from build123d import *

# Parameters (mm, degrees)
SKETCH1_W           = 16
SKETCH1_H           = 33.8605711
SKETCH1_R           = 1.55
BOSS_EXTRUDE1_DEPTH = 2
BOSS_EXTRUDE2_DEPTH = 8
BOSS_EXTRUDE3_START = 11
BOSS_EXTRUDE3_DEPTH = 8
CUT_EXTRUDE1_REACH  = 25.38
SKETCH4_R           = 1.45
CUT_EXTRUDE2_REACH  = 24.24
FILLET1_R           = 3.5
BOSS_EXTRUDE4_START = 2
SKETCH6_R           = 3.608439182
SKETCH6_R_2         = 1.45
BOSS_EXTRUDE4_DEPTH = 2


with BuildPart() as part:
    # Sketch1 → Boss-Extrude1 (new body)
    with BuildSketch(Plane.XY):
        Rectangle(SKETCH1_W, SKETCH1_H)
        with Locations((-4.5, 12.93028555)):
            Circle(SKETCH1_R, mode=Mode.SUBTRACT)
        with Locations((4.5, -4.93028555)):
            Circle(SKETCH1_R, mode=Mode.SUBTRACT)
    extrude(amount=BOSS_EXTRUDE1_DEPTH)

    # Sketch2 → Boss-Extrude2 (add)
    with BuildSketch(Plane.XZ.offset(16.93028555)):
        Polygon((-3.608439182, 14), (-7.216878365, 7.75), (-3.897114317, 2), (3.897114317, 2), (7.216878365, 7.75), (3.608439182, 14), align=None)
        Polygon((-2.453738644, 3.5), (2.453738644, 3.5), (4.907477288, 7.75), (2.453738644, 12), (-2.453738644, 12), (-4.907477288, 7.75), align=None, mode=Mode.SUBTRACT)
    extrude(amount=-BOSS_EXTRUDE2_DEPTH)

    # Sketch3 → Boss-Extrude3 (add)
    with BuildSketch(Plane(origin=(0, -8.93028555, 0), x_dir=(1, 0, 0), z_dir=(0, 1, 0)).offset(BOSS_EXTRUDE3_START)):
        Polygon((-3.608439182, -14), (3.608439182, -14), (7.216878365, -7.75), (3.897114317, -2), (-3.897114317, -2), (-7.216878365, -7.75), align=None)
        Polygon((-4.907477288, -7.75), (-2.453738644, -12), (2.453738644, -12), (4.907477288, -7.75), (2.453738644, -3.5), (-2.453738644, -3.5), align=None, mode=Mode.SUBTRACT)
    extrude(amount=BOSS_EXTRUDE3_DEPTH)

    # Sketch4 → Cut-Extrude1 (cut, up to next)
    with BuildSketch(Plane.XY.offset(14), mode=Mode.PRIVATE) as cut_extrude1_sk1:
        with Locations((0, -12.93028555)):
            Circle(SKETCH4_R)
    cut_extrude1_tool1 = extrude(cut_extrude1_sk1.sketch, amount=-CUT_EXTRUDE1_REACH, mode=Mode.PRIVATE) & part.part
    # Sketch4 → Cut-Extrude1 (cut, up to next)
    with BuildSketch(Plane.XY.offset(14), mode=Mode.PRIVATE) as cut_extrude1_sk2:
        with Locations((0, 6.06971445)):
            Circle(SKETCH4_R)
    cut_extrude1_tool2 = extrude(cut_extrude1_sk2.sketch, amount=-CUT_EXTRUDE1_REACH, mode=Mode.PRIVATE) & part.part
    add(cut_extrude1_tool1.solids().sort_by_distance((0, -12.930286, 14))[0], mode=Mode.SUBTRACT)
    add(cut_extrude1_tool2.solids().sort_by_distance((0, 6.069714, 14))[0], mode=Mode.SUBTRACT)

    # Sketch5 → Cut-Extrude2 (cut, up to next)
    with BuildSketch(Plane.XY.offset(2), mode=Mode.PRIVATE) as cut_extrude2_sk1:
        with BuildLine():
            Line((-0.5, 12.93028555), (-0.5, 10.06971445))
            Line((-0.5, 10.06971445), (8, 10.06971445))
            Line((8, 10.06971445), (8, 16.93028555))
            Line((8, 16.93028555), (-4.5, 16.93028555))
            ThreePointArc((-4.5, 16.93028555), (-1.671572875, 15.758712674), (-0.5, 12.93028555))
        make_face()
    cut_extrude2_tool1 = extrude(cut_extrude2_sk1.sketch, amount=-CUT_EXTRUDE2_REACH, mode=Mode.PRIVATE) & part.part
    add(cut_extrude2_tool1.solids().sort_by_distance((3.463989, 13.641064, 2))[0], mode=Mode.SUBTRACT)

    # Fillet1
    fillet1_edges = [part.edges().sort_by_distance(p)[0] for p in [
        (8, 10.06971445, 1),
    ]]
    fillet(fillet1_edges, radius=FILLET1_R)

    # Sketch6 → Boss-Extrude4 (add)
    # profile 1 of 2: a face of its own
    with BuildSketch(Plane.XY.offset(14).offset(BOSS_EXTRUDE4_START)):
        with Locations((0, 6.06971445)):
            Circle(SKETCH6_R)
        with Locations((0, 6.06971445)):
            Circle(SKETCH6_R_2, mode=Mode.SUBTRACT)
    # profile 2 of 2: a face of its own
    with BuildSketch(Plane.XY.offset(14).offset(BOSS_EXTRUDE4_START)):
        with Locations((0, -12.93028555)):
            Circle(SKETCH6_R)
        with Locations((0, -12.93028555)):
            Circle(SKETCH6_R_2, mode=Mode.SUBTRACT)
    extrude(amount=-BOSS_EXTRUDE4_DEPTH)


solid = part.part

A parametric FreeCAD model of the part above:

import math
import FreeCAD as App
import Part
import Sketcher
Q = App.Units.Quantity


def edges_at(feature, points):
    """Names of the edges that pass closest to the given points."""
    edges = feature.Shape.Edges
    near = lambda p: min(range(len(edges)), key=lambda i: edges[i].distToShape(Part.Vertex(*p))[0])
    return sorted({f"Edge{near(p) + 1}" for p in points})


def add_polygon(sketch, points):
    """Adds a closed chain of lines whose ends are joined by coincident constraints."""
    first, n = sketch.GeometryCount, len(points)
    for a, b in zip(points, points[1:] + points[:1]):
        sketch.addGeometry(Part.LineSegment(App.Vector(*a, 0), App.Vector(*b, 0)), False)
    for i in range(n):
        sketch.addConstraint(Sketcher.Constraint("Coincident", first + i, 2, first + (i + 1) % n, 1))

doc = App.newDocument("Part")
params = doc.addObject("Spreadsheet::Sheet", "Params")
for row, (alias, value) in enumerate([
    ("sketch1_diameter", "3.1 mm"),
    ("sketch1_width", "16 mm"),
    ("pad1_length", "2 mm"),
    ("pad2_length", "8 mm"),
    ("pad3_length", "8 mm"),
    ("sketch4_diameter", "2.9 mm"),
    ("sketch5_diameter", "2.9 mm"),
    ("sketch6_radius", "4 mm"),
    ("sketch6_width", "8.5 mm"),
    ("fillet_radius", "3.5 mm"),
    ("sketch7_diameter", "2.9 mm"),
    ("pad4_length", "2 mm"),
], start=1):
    params.set(f"A{row}", alias)
    params.set(f"B{row}", "=" + value)
    params.setAlias(f"B{row}", alias)

body = doc.addObject("PartDesign::Body", "Body")

# Sketch on XY plane
sketch1 = body.newObject("Sketcher::SketchObject", "Sketch")
sketch1.AttachmentSupport = (doc.getObject("XY_Plane"), [""])
sketch1.MapMode = "FlatFace"
add_polygon(sketch1, [(-8, 16.9), (-8, -16.9), (8, -16.9), (8, 16.9)])  # lines 0-3
sketch1.addGeometry(Part.Circle(App.Vector(4.5, -4.9, 0), App.Vector(0, 0, 1), 1.6), False)  # 4
sketch1.addGeometry(Part.Circle(App.Vector(-4.5, 12.9, 0), App.Vector(0, 0, 1), 1.6), False)  # 5
sketch1.addConstraint([
    Sketcher.Constraint("Vertical", 0),
    Sketcher.Constraint("Horizontal", 1),
    Sketcher.Constraint("Vertical", 2),
    Sketcher.Constraint("Horizontal", 3),
    Sketcher.Constraint("Equal", 4, 5),
    Sketcher.Constraint("Symmetric", 0, 2, 2, 2, -1, 1),
    Sketcher.Constraint("Diameter", 4, Q("3.1 mm")),
    Sketcher.Constraint("DistanceX", 1, 1, 1, 2, Q("16 mm")),
    Sketcher.Constraint("DistanceX", 5, 3, 4, 3, Q("9 mm")),
    Sketcher.Constraint("DistanceY", 0, 2, 4, 3, Q("12 mm")),
    Sketcher.Constraint("DistanceY", 5, 3, 2, 2, Q("4 mm")),
    Sketcher.Constraint("DistanceX", -1, 1, 4, 3, Q("4.5 mm")),
    Sketcher.Constraint("DistanceY", 0, 2, 0, 1, Q("33.860571 mm")),
])
sketch1.setExpression("Constraints[10]", "Params.sketch1_diameter")
sketch1.setExpression("Constraints[11]", "Params.sketch1_width")
pad1 = body.newObject("PartDesign::Pad", "Pad")
pad1.Profile = sketch1
pad1.setExpression("Length", "Params.pad1_length")

# Sketch on XZ plane
sketch2 = body.newObject("Sketcher::SketchObject", "Sketch001")
sketch2.AttachmentSupport = (doc.getObject("XZ_Plane"), [""])
sketch2.MapMode = "FlatFace"
sketch2.AttachmentOffset = App.Placement(App.Vector(0, 0, 16.930286), App.Rotation())
add_polygon(sketch2, [(-3.6, 14), (-7.2, 7.8), (-3.9, 2), (3.9, 2), (7.2, 7.8), (3.6, 14)])  # lines 0-5
add_polygon(sketch2, [(2.5, 3.5), (-2.5, 3.5), (-4.9, 7.8), (-2.5, 12), (2.5, 12), (4.9, 7.8)])  # lines 6-11
sketch2.addConstraint([
    Sketcher.Constraint("Horizontal", 2),
    Sketcher.Constraint("Horizontal", 5),
    Sketcher.Constraint("Horizontal", 6),
    Sketcher.Constraint("Horizontal", 9),
    Sketcher.Constraint("Symmetric", 0, 2, 3, 2, -2),
    Sketcher.Constraint("Symmetric", 7, 2, 10, 2, -2),
    Sketcher.Constraint("Parallel", 0, 3),
    Sketcher.Constraint("Parallel", 1, 4),
    Sketcher.Constraint("Parallel", 4, 7),
    Sketcher.Constraint("Parallel", 3, 8),
    Sketcher.Constraint("Parallel", 7, 10),
    Sketcher.Constraint("Parallel", 8, 11),
    Sketcher.Constraint("Horizontal", 3, 2, 7, 2),
    Sketcher.Constraint("Vertical", 6, 2, 8, 2),
    Sketcher.Constraint("Vertical", 9, 2, 11, 2),
    Sketcher.Constraint("Angle", 0, Q("-120 deg")),
    Sketcher.Constraint("DistanceY", -1, 1, 1, 2, Q("2 mm")),
    Sketcher.Constraint("DistanceY", -1, 1, 4, 2, Q("14 mm")),
    Sketcher.Constraint("DistanceY", -1, 1, 8, 2, Q("12 mm")),
    Sketcher.Constraint("DistanceY", -1, 1, 6, 2, Q("3.5 mm")),
    Sketcher.Constraint("DistanceX", 2, 1, 2, 2, Q("7.794229 mm")),
    Sketcher.Constraint("DistanceX", 5, 2, 6, 2, Q("1.154701 mm")),
])
pad2 = body.newObject("PartDesign::Pad", "Pad001")
pad2.Profile = sketch2
pad2.setExpression("Length", "Params.pad2_length")
pad2.Reversed = True

# Sketch on XZ plane
sketch3 = body.newObject("Sketcher::SketchObject", "Sketch002")
sketch3.AttachmentSupport = (doc.getObject("XZ_Plane"), [""])
sketch3.MapMode = "FlatFace"
sketch3.AttachmentOffset = App.Placement(App.Vector(0, 0, -2.069714), App.Rotation())
add_polygon(sketch3, [(-3.6, 14), (3.6, 14), (7.2, 7.8), (3.9, 2), (-3.9, 2), (-7.2, 7.8)])  # lines 0-5
add_polygon(sketch3, [(-2.5, 12), (-4.9, 7.8), (-2.5, 3.5), (2.5, 3.5), (4.9, 7.8), (2.5, 12)])  # lines 6-11
sketch3.addConstraint([
    Sketcher.Constraint("Horizontal", 0),
    Sketcher.Constraint("Horizontal", 3),
    Sketcher.Constraint("Horizontal", 8),
    Sketcher.Constraint("Horizontal", 11),
    Sketcher.Constraint("Symmetric", 1, 2, 4, 2, -2),
    Sketcher.Constraint("Symmetric", 6, 2, 9, 2, -2),
    Sketcher.Constraint("Parallel", 1, 4),
    Sketcher.Constraint("Parallel", 2, 5),
    Sketcher.Constraint("Parallel", 5, 6),
    Sketcher.Constraint("Parallel", 4, 7),
    Sketcher.Constraint("Parallel", 6, 9),
    Sketcher.Constraint("Parallel", 7, 10),
    Sketcher.Constraint("Horizontal", 4, 2, 6, 2),
    Sketcher.Constraint("Vertical", 8, 2, 10, 2),
    Sketcher.Constraint("Vertical", 7, 2, 11, 2),
    Sketcher.Constraint("Angle", 1, Q("-60 deg")),
    Sketcher.Constraint("DistanceY", -1, 1, 0, 2, Q("14 mm")),
    Sketcher.Constraint("DistanceY", -1, 1, 2, 2, Q("2 mm")),
    Sketcher.Constraint("DistanceY", -1, 1, 10, 2, Q("12 mm")),
    Sketcher.Constraint("DistanceY", -1, 1, 7, 2, Q("3.5 mm")),
    Sketcher.Constraint("DistanceX", 0, 1, 0, 2, Q("7.216878 mm")),
    Sketcher.Constraint("DistanceX", 4, 2, 6, 2, Q("2.309401 mm")),
])
pad3 = body.newObject("PartDesign::Pad", "Pad002")
pad3.Profile = sketch3
pad3.setExpression("Length", "Params.pad3_length")
pad3.Reversed = True

# Sketch on XY plane
sketch4 = body.newObject("Sketcher::SketchObject", "Sketch003")
sketch4.AttachmentSupport = (doc.getObject("XY_Plane"), [""])
sketch4.MapMode = "FlatFace"
sketch4.AttachmentOffset = App.Placement(App.Vector(0, 0, 14), App.Rotation())
sketch4.addGeometry(Part.Circle(App.Vector(0, -12.9, 0), App.Vector(0, 0, 1), 1.4), False)
sketch4.addConstraint([
    Sketcher.Constraint("PointOnObject", 0, 3, -2),
    Sketcher.Constraint("Diameter", 0, Q("2.9 mm")),
    Sketcher.Constraint("DistanceY", 0, 3, -1, 1, Q("12.930286 mm")),
])
sketch4.setExpression("Constraints[1]", "Params.sketch4_diameter")
pocket1 = body.newObject("PartDesign::Pocket", "Pocket")
pocket1.Profile = sketch4
pocket1.Type = "UpToFirst"

# Sketch on XY plane
sketch5 = body.newObject("Sketcher::SketchObject", "Sketch004")
sketch5.AttachmentSupport = (doc.getObject("XY_Plane"), [""])
sketch5.MapMode = "FlatFace"
sketch5.AttachmentOffset = App.Placement(App.Vector(0, 0, 14), App.Rotation())
sketch5.addGeometry(Part.Circle(App.Vector(0, 6.1, 0), App.Vector(0, 0, 1), 1.4), False)
sketch5.addConstraint([
    Sketcher.Constraint("PointOnObject", 0, 3, -2),
    Sketcher.Constraint("Diameter", 0, Q("2.9 mm")),
    Sketcher.Constraint("DistanceY", -1, 1, 0, 3, Q("6.069714 mm")),
])
sketch5.setExpression("Constraints[1]", "Params.sketch5_diameter")
pocket2 = body.newObject("PartDesign::Pocket", "Pocket001")
pocket2.Profile = sketch5
pocket2.Type = "UpToFirst"

# Sketch on XY plane
sketch6 = body.newObject("Sketcher::SketchObject", "Sketch005")
sketch6.AttachmentSupport = (doc.getObject("XY_Plane"), [""])
sketch6.MapMode = "FlatFace"
sketch6.AttachmentOffset = App.Placement(App.Vector(0, 0, 2), App.Rotation())
sketch6.addGeometry([
    Part.LineSegment(App.Vector(-0.5, 12.9, 0), App.Vector(-0.5, 10.1, 0)),  # 0
    Part.LineSegment(App.Vector(-0.5, 10.1, 0), App.Vector(8, 10.1, 0)),  # 1
    Part.LineSegment(App.Vector(8, 10.1, 0), App.Vector(8, 16.9, 0)),  # 2
    Part.LineSegment(App.Vector(8, 16.9, 0), App.Vector(-4.5, 16.9, 0)),  # 3
    Part.ArcOfCircle(Part.Circle(App.Vector(-4.5, 12.9, 0), App.Vector(0, 0, 1), 4), math.radians(0), math.radians(90)),  # 4
], False)
sketch6.addConstraint([
    Sketcher.Constraint("Coincident", 0, 2, 1, 1),
    Sketcher.Constraint("Coincident", 1, 2, 2, 1),
    Sketcher.Constraint("Coincident", 2, 2, 3, 1),
    Sketcher.Constraint("Tangent", 3, 2, 4, 2),
    Sketcher.Constraint("Tangent", 4, 1, 0, 1),
    Sketcher.Constraint("Vertical", 0),
    Sketcher.Constraint("Horizontal", 1),
    Sketcher.Constraint("Vertical", 2),
    Sketcher.Constraint("Horizontal", 3),
    Sketcher.Constraint("Radius", 4, Q("4 mm")),
    Sketcher.Constraint("DistanceX", 1, 1, 1, 2, Q("8.5 mm")),
    Sketcher.Constraint("DistanceX", -1, 1, 1, 2, Q("8 mm")),
    Sketcher.Constraint("DistanceY", 0, 2, 0, 1, Q("2.860571 mm")),
    Sketcher.Constraint("DistanceY", -1, 1, 4, 3, Q("12.930286 mm")),
])
sketch6.setExpression("Constraints[9]", "Params.sketch6_radius")
sketch6.setExpression("Constraints[10]", "Params.sketch6_width")
pocket3 = body.newObject("PartDesign::Pocket", "Pocket002")
pocket3.Profile = sketch6
pocket3.Type = "UpToFirst"
doc.recompute()

fillet = body.newObject("PartDesign::Fillet", "Fillet")
fillet.Base = (pocket3, edges_at(pocket3, [(8, 10.07, 1)]))
fillet.setExpression("Radius", "Params.fillet_radius")

# Sketch on XY plane
sketch7 = body.newObject("Sketcher::SketchObject", "Sketch006")
sketch7.AttachmentSupport = (doc.getObject("XY_Plane"), [""])
sketch7.MapMode = "FlatFace"
sketch7.AttachmentOffset = App.Placement(App.Vector(0, 0, 16), App.Rotation())
sketch7.addGeometry([
    Part.Circle(App.Vector(0, 6.1, 0), App.Vector(0, 0, 1), 3.6),
    Part.Circle(App.Vector(0, 6.1, 0), App.Vector(0, 0, 1), 1.4),
    Part.Circle(App.Vector(0, -12.9, 0), App.Vector(0, 0, 1), 3.6),
    Part.Circle(App.Vector(0, -12.9, 0), App.Vector(0, 0, 1), 1.4),
], False)
sketch7.addConstraint([
    Sketcher.Constraint("Coincident", 1, 3, 0, 3),
    Sketcher.Constraint("Coincident", 3, 3, 2, 3),
    Sketcher.Constraint("Equal", 0, 2),
    Sketcher.Constraint("Equal", 1, 3),
    Sketcher.Constraint("PointOnObject", 0, 3, -2),
    Sketcher.Constraint("PointOnObject", 2, 3, -2),
    Sketcher.Constraint("Diameter", 1, Q("2.9 mm")),
    Sketcher.Constraint("DistanceY", 2, 3, 0, 3, Q("19 mm")),
    Sketcher.Constraint("Diameter", 0, Q("7.216878 mm")),
    Sketcher.Constraint("DistanceY", -1, 1, 0, 3, Q("6.069714 mm")),
])
sketch7.setExpression("Constraints[6]", "Params.sketch7_diameter")
pad4 = body.newObject("PartDesign::Pad", "Pad003")
pad4.Profile = sketch7
pad4.setExpression("Length", "Params.pad4_length")
pad4.Reversed = True

doc.recompute()
